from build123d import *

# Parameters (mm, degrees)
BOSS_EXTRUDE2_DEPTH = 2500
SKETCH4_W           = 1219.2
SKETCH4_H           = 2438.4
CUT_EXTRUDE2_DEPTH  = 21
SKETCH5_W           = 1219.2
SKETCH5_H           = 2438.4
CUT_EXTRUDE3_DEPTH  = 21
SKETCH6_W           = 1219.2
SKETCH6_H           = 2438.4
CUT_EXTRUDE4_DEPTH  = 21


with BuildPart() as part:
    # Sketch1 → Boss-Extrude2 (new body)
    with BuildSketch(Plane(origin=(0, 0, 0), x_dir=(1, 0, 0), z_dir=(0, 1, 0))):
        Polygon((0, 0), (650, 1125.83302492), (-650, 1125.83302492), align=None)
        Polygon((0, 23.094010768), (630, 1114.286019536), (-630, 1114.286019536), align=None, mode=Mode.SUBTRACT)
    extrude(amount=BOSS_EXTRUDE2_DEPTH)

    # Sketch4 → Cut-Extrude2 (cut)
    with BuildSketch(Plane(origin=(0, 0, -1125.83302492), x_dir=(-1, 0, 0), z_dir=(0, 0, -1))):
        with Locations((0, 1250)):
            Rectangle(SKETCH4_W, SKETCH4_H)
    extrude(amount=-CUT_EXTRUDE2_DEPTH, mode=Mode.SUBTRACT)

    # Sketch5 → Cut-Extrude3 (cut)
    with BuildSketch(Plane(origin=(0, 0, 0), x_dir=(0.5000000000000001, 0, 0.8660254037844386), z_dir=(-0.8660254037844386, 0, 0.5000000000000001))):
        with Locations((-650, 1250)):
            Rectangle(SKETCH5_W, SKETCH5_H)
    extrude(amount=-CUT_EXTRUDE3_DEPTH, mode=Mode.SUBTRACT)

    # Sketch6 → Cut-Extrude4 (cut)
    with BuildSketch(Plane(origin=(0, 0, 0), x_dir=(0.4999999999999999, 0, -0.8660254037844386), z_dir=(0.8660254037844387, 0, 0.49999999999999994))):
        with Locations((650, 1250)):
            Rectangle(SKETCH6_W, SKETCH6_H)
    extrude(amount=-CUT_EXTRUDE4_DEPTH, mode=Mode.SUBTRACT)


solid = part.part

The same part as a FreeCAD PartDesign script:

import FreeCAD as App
import Part
import Sketcher
Q = App.Units.Quantity

doc = App.newDocument("Part")
params = doc.addObject("Spreadsheet::Sheet", "Params")
for row, (alias, value) in enumerate([
    ("sketch1_width", "1300 mm"),
    ("sketch1_width2", "1260 mm"),
    ("pad1_length", "2500 mm"),
    ("sketch2_width", "1219.2 mm"),
    ("sketch2_height", "2438.4 mm"),
    ("pocket1_length", "21 mm"),
    ("sketch3_width", "1219.2 mm"),
    ("sketch3_height", "2438.400002 mm"),
    ("pocket2_length", "21 mm"),
    ("sketch4_width", "1219.2 mm"),
    ("sketch4_height", "2438.400002 mm"),
    ("pocket3_length", "21 mm"),
], start=1):
    params.set(f"A{row}", alias)
    params.set(f"B{row}", "=" + value)
    params.setAlias(f"B{row}", alias)

body = doc.addObject("PartDesign::Body", "Body")

sketch1 = body.newObject("Sketcher::SketchObject", "Sketch")
sketch1.AttachmentSupport = (doc.getObject("XZ_Plane"), [""])
sketch1.MapMode = "FlatFace"
sketch1.addGeometry([
    Part.LineSegment(App.Vector(0, 0, 0), App.Vector(650, -1126, 0)),
    Part.LineSegment(App.Vector(650, -1126, 0), App.Vector(-650, -1126, 0)),
    Part.LineSegment(App.Vector(-650, -1126, 0), App.Vector(0, 0, 0)),
    Part.LineSegment(App.Vector(630, -1114, 0), App.Vector(0, -23, 0)),
    Part.LineSegment(App.Vector(0, -23, 0), App.Vector(-630, -1114, 0)),
    Part.LineSegment(App.Vector(-630, -1114, 0), App.Vector(630, -1114, 0)),
], False)
sketch1.addConstraint([
    Sketcher.Constraint("Coincident", 0, 2, 1, 1),
    Sketcher.Constraint("Coincident", 1, 2, 2, 1),
    Sketcher.Constraint("Coincident", 2, 2, 0, 1),
    Sketcher.Constraint("Coincident", 3, 2, 4, 1),
    Sketcher.Constraint("Coincident", 4, 2, 5, 1),
    Sketcher.Constraint("Coincident", 5, 2, 3, 1),
    Sketcher.Constraint("Horizontal", 1),
    Sketcher.Constraint("Horizontal", 5),
    Sketcher.Constraint("Coincident", 2, 2, -1, 1),
    Sketcher.Constraint("PointOnObject", 3, 2, -2),
    Sketcher.Constraint("Parallel", 0, 3),
    Sketcher.Constraint("Parallel", 2, 4),
    Sketcher.Constraint("Equal", 0, 2),
    Sketcher.Constraint("DistanceX", 1, 2, 1, 1, Q("1300 mm")),
    Sketcher.Constraint("DistanceX", 5, 1, 5, 2, Q("1260 mm")),
    Sketcher.Constraint("Angle", 0, Q("-60 deg")),
    Sketcher.Constraint("DistanceY", 3, 2, -1, 1, Q("23.094011 mm")),
])
sketch1.setExpression("Constraints[13]", "Params.sketch1_width")
sketch1.setExpression("Constraints[14]", "Params.sketch1_width2")
pad1 = body.newObject("PartDesign::Pad", "Pad")
pad1.Profile = sketch1
pad1.setExpression("Length", "Params.pad1_length")
pad1.Reversed = True

sketch2 = body.newObject("Sketcher::SketchObject", "Sketch001")
sketch2.AttachmentSupport = (doc.getObject("XY_Plane"), [""])
sketch2.MapMode = "FlatFace"
sketch2.AttachmentOffset = App.Placement(App.Vector(0, 0, -1125.833025), App.Rotation())
sketch2.addGeometry([
    Part.LineSegment(App.Vector(610, 2469, 0), App.Vector(610, 31, 0)),
    Part.LineSegment(App.Vector(610, 31, 0), App.Vector(-610, 31, 0)),
    Part.LineSegment(App.Vector(-610, 31, 0), App.Vector(-610, 2469, 0)),
    Part.LineSegment(App.Vector(-610, 2469, 0), App.Vector(610, 2469, 0)),
], False)
sketch2.addConstraint([
    Sketcher.Constraint("Coincident", 0, 2, 1, 1),
    Sketcher.Constraint("Coincident", 1, 2, 2, 1),
    Sketcher.Constraint("Coincident", 2, 2, 3, 1),
    Sketcher.Constraint("Coincident", 3, 2, 0, 1),
    Sketcher.Constraint("Vertical", 0),
    Sketcher.Constraint("Horizontal", 1),
    Sketcher.Constraint("Vertical", 2),
    Sketcher.Constraint("Horizontal", 3),
    Sketcher.Constraint("DistanceX", 1, 2, 1, 1, Q("1219.2 mm")),
    Sketcher.Constraint("DistanceY", 0, 2, 0, 1, Q("2438.4 mm")),
    Sketcher.Constraint("DistanceX", -1, 1, 0, 2, Q("609.6 mm")),
    Sketcher.Constraint("DistanceY", -1, 1, 0, 2, Q("30.8 mm")),
])
sketch2.setExpression("Constraints[8]", "Params.sketch2_width")
sketch2.setExpression("Constraints[9]", "Params.sketch2_height")
pocket1 = body.newObject("PartDesign::Pocket", "Pocket")
pocket1.Profile = sketch2
pocket1.setExpression("Length", "Params.pocket1_length")
pocket1.Reversed = True

sketch3 = body.newObject("Sketcher::SketchObject", "Sketch002")
sketch3.Placement = App.Placement(App.Vector(0, 0, 0), App.Rotation(App.Vector(0.5, 0, 0.866025404), App.Vector(0, 1, 0), App.Vector(-0.866025404, 0, 0.5), "ZXY"))
sketch3.addGeometry([
    Part.LineSegment(App.Vector(-1260, 2469, 0), App.Vector(-1260, 31, 0)),
    Part.LineSegment(App.Vector(-1260, 31, 0), App.Vector(-40, 31, 0)),
    Part.LineSegment(App.Vector(-40, 31, 0), App.Vector(-40, 2469, 0)),
    Part.LineSegment(App.Vector(-40, 2469, 0), App.Vector(-1260, 2469, 0)),
], False)
sketch3.addConstraint([
    Sketcher.Constraint("Coincident", 0, 2, 1, 1),
    Sketcher.Constraint("Coincident", 1, 2, 2, 1),
    Sketcher.Constraint("Coincident", 2, 2, 3, 1),
    Sketcher.Constraint("Coincident", 3, 2, 0, 1),
    Sketcher.Constraint("Vertical", 0),
    Sketcher.Constraint("Horizontal", 1),
    Sketcher.Constraint("Vertical", 2),
    Sketcher.Constraint("Horizontal", 3),
    Sketcher.Constraint("DistanceX", 1, 1, 1, 2, Q("1219.2 mm")),
    Sketcher.Constraint("DistanceY", 0, 2, 0, 1, Q("2438.400002 mm")),
    Sketcher.Constraint("DistanceX", 0, 2, -1, 1, Q("1259.6 mm")),
    Sketcher.Constraint("DistanceY", -1, 1, 0, 2, Q("30.8 mm")),
])
sketch3.setExpression("Constraints[8]", "Params.sketch3_width")
sketch3.setExpression("Constraints[9]", "Params.sketch3_height")
pocket2 = body.newObject("PartDesign::Pocket", "Pocket001")
pocket2.Profile = sketch3
pocket2.setExpression("Length", "Params.pocket2_length")

sketch4 = body.newObject("Sketcher::SketchObject", "Sketch003")
sketch4.Placement = App.Placement(App.Vector(0, 0, 0), App.Rotation(App.Vector(0.5, 0, -0.866025404), App.Vector(0, 1, 0), App.Vector(0.866025404, 0, 0.5), "ZXY"))
sketch4.addGeometry([
    Part.LineSegment(App.Vector(40, 2469, 0), App.Vector(40, 31, 0)),
    Part.LineSegment(App.Vector(40, 31, 0), App.Vector(1260, 31, 0)),
    Part.LineSegment(App.Vector(1260, 31, 0), App.Vector(1260, 2469, 0)),
    Part.LineSegment(App.Vector(1260, 2469, 0), App.Vector(40, 2469, 0)),
], False)
sketch4.addConstraint([
    Sketcher.Constraint("Coincident", 0, 2, 1, 1),
    Sketcher.Constraint("Coincident", 1, 2, 2, 1),
    Sketcher.Constraint("Coincident", 2, 2, 3, 1),
    Sketcher.Constraint("Coincident", 3, 2, 0, 1),
    Sketcher.Constraint("Vertical", 0),
    Sketcher.Constraint("Horizontal", 1),
    Sketcher.Constraint("Vertical", 2),
    Sketcher.Constraint("Horizontal", 3),
    Sketcher.Constraint("DistanceX", 1, 1, 1, 2, Q("1219.2 mm")),
    Sketcher.Constraint("DistanceY", 0, 2, 0, 1, Q("2438.400002 mm")),
    Sketcher.Constraint("DistanceX", -1, 1, 0, 2, Q("40.4 mm")),
    Sketcher.Constraint("DistanceY", -1, 1, 0, 2, Q("30.8 mm")),
])
sketch4.setExpression("Constraints[8]", "Params.sketch4_width")
sketch4.setExpression("Constraints[9]", "Params.sketch4_height")
pocket3 = body.newObject("PartDesign::Pocket", "Pocket002")
pocket3.Profile = sketch4
pocket3.setExpression("Length", "Params.pocket3_length")

doc.recompute()
